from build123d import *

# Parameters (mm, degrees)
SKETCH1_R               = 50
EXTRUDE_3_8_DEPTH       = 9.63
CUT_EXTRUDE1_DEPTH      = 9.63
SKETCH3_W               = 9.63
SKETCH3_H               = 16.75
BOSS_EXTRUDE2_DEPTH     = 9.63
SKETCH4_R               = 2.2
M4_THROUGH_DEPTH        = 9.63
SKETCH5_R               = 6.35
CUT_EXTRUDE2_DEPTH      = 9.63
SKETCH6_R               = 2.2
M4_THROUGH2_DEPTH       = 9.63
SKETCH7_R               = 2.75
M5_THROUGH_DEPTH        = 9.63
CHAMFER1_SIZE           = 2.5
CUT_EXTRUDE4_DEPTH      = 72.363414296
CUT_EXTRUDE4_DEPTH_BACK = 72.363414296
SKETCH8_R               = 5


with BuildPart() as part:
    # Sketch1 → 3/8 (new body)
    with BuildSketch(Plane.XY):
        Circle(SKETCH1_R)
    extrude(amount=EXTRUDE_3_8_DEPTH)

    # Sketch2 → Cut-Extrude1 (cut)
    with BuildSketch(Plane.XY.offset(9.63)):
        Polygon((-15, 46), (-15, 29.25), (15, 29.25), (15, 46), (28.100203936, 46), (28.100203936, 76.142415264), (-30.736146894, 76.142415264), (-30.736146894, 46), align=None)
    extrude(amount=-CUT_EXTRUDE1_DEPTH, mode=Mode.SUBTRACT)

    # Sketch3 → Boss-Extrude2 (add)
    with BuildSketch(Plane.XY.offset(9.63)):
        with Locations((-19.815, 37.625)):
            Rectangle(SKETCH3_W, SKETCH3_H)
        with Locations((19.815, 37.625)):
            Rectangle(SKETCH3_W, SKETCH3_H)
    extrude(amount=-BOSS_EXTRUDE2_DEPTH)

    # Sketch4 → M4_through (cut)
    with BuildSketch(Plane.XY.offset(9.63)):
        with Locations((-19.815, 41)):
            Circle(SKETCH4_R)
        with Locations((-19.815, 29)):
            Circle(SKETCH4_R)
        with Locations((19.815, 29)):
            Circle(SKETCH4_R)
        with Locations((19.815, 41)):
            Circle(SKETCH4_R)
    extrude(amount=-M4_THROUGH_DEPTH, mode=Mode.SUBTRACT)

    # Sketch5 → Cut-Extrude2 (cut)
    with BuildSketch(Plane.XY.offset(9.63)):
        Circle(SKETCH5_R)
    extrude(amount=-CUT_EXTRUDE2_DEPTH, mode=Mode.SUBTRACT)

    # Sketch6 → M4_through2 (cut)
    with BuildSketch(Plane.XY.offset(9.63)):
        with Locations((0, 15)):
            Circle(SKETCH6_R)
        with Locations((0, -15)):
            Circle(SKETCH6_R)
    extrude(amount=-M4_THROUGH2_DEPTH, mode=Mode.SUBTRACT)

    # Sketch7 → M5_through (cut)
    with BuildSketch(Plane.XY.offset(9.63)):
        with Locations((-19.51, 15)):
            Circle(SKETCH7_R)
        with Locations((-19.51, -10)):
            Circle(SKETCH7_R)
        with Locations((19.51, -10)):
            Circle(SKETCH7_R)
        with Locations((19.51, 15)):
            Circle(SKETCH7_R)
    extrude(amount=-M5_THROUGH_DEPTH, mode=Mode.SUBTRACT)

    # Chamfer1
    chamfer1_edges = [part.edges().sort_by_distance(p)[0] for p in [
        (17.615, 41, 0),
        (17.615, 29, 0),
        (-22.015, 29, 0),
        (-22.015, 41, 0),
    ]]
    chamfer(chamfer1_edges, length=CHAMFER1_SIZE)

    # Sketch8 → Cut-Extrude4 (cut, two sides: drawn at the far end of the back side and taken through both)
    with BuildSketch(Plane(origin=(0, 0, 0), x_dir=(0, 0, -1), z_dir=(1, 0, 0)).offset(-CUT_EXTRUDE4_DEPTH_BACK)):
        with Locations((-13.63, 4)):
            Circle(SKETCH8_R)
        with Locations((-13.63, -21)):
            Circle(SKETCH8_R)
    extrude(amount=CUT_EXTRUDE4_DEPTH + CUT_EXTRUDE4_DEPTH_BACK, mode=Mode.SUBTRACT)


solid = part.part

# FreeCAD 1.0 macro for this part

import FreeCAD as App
import Part
import Sketcher

V = App.Vector
Q = App.Units.Quantity


def edges_at(feature, points):
    """Names of the edges that pass closest to the given points."""
    edges = feature.Shape.Edges
    near = lambda p: min(range(len(edges)), key=lambda i: edges[i].distToShape(Part.Vertex(*p))[0])
    return sorted({f"Edge{near(p) + 1}" for p in points})


def add_polygon(sketch, points):
    """Adds a closed chain of lines whose ends are joined by coincident constraints."""
    first, n = sketch.GeometryCount, len(points)
    for a, b in zip(points, points[1:] + points[:1]):
        sketch.addGeometry(Part.LineSegment(App.Vector(*a, 0), App.Vector(*b, 0)), False)
    for i in range(n):
        sketch.addConstraint(Sketcher.Constraint("Coincident", first + i, 2, first + (i + 1) % n, 1))

doc = App.newDocument("Part")
params = doc.addObject("Spreadsheet::Sheet", "Params")
for row, (alias, value) in enumerate([
    ("sketch1_diameter", "100 mm"),
    ("pad1_length", "9.63 mm"),
    ("sketch2_width", "30 mm"),
    ("sketch2_height", "16.75 mm"),
    ("pocket1_length", "9.63 mm"),
    ("sketch3_width", "9.63 mm"),
    ("sketch3_height", "16.75 mm"),
    ("pad2_length", "9.63 mm"),
    ("sketch4_diameter", "4.4 mm"),
    ("pocket2_length", "9.63 mm"),
    ("sketch5_diameter", "12.7 mm"),
    ("pocket3_length", "9.63 mm"),
    ("sketch6_diameter", "4.4 mm"),
    ("pocket4_length", "9.63 mm"),
    ("sketch7_diameter", "5.5 mm"),
    ("pocket5_length", "9.63 mm"),
    ("chamfer_size", "2.5 mm"),
    ("sketch8_diameter", "10 mm"),
], start=1):
    params.set(f"A{row}", alias)
    params.set(f"B{row}", "=" + value)
    params.setAlias(f"B{row}", alias)

body = doc.addObject("PartDesign::Body", "Body")

# Sketch on XY plane
sketch1 = body.newObject("Sketcher::SketchObject", "Sketch")
sketch1.AttachmentSupport = (doc.getObject("XY_Plane"), [""])
sketch1.MapMode = "FlatFace"
sketch1.addGeometry(Part.Circle(V(0, 0, 0), V(0, 0, 1), 50), False)
sketch1.addConstraint([
    Sketcher.Constraint("Coincident", 0, 3, -1, 1),
    Sketcher.Constraint("Diameter", 0, Q("100 mm")),
])
sketch1.setExpression("Constraints[1]", "Params.sketch1_diameter")
pad1 = body.newObject("PartDesign::Pad", "Pad")
pad1.Profile = sketch1
pad1.setExpression("Length", "Params.pad1_length")

# Sketch on XY plane
sketch2 = body.newObject("Sketcher::SketchObject", "Sketch001")
sketch2.AttachmentSupport = (doc.getObject("XY_Plane"), [""])
sketch2.MapMode = "FlatFace"
sketch2.AttachmentOffset = App.Placement(V(0, 0, 9.63), App.Rotation())
add_polygon(sketch2, [(-15, 46), (-15, 29.25), (15, 29.25), (15, 46), (28.100204, 46), (28.100204, 76.142415), (-30.736147, 76.142415), (-30.736147, 46)])  # lines 0-7
sketch2.addConstraint([
    Sketcher.Constraint("Vertical", 0),
    Sketcher.Constraint("Horizontal", 1),
    Sketcher.Constraint("Vertical", 2),
    Sketcher.Constraint("Horizontal", 3),
    Sketcher.Constraint("Vertical", 4),
    Sketcher.Constraint("Horizontal", 5),
    Sketcher.Constraint("Vertical", 6),
    Sketcher.Constraint("Horizontal", 7),
    Sketcher.Constraint("Symmetric", 2, 2, 7, 2, -2),
    Sketcher.Constraint("DistanceX", 1, 1, 1, 2, Q("30 mm")),
    Sketcher.Constraint("DistanceY", -1, 1, 2, 2, Q("46 mm")),
    Sketcher.Constraint("DistanceY", 0, 2, 0, 1, Q("16.75 mm")),
    Sketcher.Constraint("DistanceX", 5, 2, 5, 1, Q("58.836351 mm")),
    Sketcher.Constraint("DistanceX", 3, 1, 3, 2, Q("13.100204 mm")),
    Sketcher.Constraint("DistanceY", 4, 1, 4, 2, Q("30.142415 mm")),
])
sketch2.setExpression("Constraints[17]", "Params.sketch2_width")
sketch2.setExpression("Constraints[19]", "Params.sketch2_height")
pocket1 = body.newObject("PartDesign::Pocket", "Pocket")
pocket1.Profile = sketch2
pocket1.setExpression("Length", "Params.pocket1_length")

# Sketch on XY plane
sketch3 = body.newObject("Sketcher::SketchObject", "Sketch002")
sketch3.AttachmentSupport = (doc.getObject("XY_Plane"), [""])
sketch3.MapMode = "FlatFace"
sketch3.AttachmentOffset = App.Placement(V(0, 0, 9.63), App.Rotation())
add_polygon(sketch3, [(-24.63, 46), (-24.63, 29.25), (-15, 29.25), (-15, 46)])  # lines 0-3
add_polygon(sketch3, [(15, 46), (15, 29.25), (24.63, 29.25), (24.63, 46)])  # lines 4-7
sketch3.addConstraint([
    Sketcher.Constraint("Vertical", 0),
    Sketcher.Constraint("Horizontal", 1),
    Sketcher.Constraint("Vertical", 2),
    Sketcher.Constraint("Horizontal", 3),
    Sketcher.Constraint("Vertical", 4),
    Sketcher.Constraint("Horizontal", 5),
    Sketcher.Constraint("Vertical", 6),
    Sketcher.Constraint("Horizontal", 7),
    Sketcher.Constraint("Symmetric", 1, 2, 4, 2, -2),
    Sketcher.Constraint("Symmetric", 3, 2, 6, 2, -2),
    Sketcher.Constraint("DistanceX", 1, 2, -1, 1, Q("15 mm")),
    Sketcher.Constraint("DistanceY", -1, 1, 2, 2, Q("46 mm")),
    Sketcher.Constraint("DistanceX", 1, 1, 1, 2, Q("9.63 mm")),
    Sketcher.Constraint("DistanceY", 0, 2, 0, 1, Q("16.75 mm")),
])
sketch3.setExpression("Constraints[20]", "Params.sketch3_width")
sketch3.setExpression("Constraints[21]", "Params.sketch3_height")
pad2 = body.newObject("PartDesign::Pad", "Pad001")
pad2.Profile = sketch3
pad2.setExpression("Length", "Params.pad2_length")
pad2.Reversed = True

# Sketch on XY plane
sketch4 = body.newObject("Sketcher::SketchObject", "Sketch003")
sketch4.AttachmentSupport = (doc.getObject("XY_Plane"), [""])
sketch4.MapMode = "FlatFace"
sketch4.AttachmentOffset = App.Placement(V(0, 0, 9.63), App.Rotation())
sketch4.addGeometry([
    Part.Circle(V(-19.815, 41, 0), V(0, 0, 1), 2.2),
    Part.Circle(V(-19.815, 29, 0), V(0, 0, 1), 2.2),
    Part.Circle(V(19.815, 29, 0), V(0, 0, 1), 2.2),
    Part.Circle(V(19.815, 41, 0), V(0, 0, 1), 2.2),
], False)
sketch4.addConstraint([
    Sketcher.Constraint("Equal", 0, 1),
    Sketcher.Constraint("Equal", 1, 2),
    Sketcher.Constraint("Equal", 2, 3),
    Sketcher.Constraint("Symmetric", 1, 3, 2, 3, -2),
    Sketcher.Constraint("Symmetric", 0, 3, 3, 3, -2),
    Sketcher.Constraint("Vertical", 0, 3, 1, 3),
    Sketcher.Constraint("Diameter", 0, Q("4.4 mm")),
    Sketcher.Constraint("DistanceY", -1, 1, 0, 3, Q("41 mm")),
    Sketcher.Constraint("DistanceY", -1, 1, 1, 3, Q("29 mm")),
    Sketcher.Constraint("DistanceX", 1, 3, 2, 3, Q("39.63 mm")),
])
sketch4.setExpression("Constraints[6]", "Params.sketch4_diameter")
pocket2 = body.newObject("PartDesign::Pocket", "Pocket001")
pocket2.Profile = sketch4
pocket2.setExpression("Length", "Params.pocket2_length")

# Sketch on XY plane
sketch5 = body.newObject("Sketcher::SketchObject", "Sketch004")
sketch5.AttachmentSupport = (doc.getObject("XY_Plane"), [""])
sketch5.MapMode = "FlatFace"
sketch5.AttachmentOffset = App.Placement(V(0, 0, 9.63), App.Rotation())
sketch5.addGeometry(Part.Circle(V(0, 0, 0), V(0, 0, 1), 6.35), False)
sketch5.addConstraint([
    Sketcher.Constraint("Coincident", 0, 3, -1, 1),
    Sketcher.Constraint("Diameter", 0, Q("12.7 mm")),
])
sketch5.setExpression("Constraints[1]", "Params.sketch5_diameter")
pocket3 = body.newObject("PartDesign::Pocket", "Pocket002")
pocket3.Profile = sketch5
pocket3.setExpression("Length", "Params.pocket3_length")

# Sketch on XY plane
sketch6 = body.newObject("Sketcher::SketchObject", "Sketch005")
sketch6.AttachmentSupport = (doc.getObject("XY_Plane"), [""])
sketch6.MapMode = "FlatFace"
sketch6.AttachmentOffset = App.Placement(V(0, 0, 9.63), App.Rotation())
sketch6.addGeometry([
    Part.Circle(V(0, 15, 0), V(0, 0, 1), 2.2),
    Part.Circle(V(0, -15, 0), V(0, 0, 1), 2.2),
], False)
sketch6.addConstraint([
    Sketcher.Constraint("Equal", 0, 1),
    Sketcher.Constraint("Symmetric", 0, 3, 1, 3, -1, 1),
    Sketcher.Constraint("PointOnObject", 0, 3, -2),
    Sketcher.Constraint("Diameter", 0, Q("4.4 mm")),
    Sketcher.Constraint("DistanceY", -1, 1, 0, 3, Q("15 mm")),
])
sketch6.setExpression("Constraints[3]", "Params.sketch6_diameter")
pocket4 = body.newObject("PartDesign::Pocket", "Pocket003")
pocket4.Profile = sketch6
pocket4.setExpression("Length", "Params.pocket4_length")

# Sketch on XY plane
sketch7 = body.newObject("Sketcher::SketchObject", "Sketch006")
sketch7.AttachmentSupport = (doc.getObject("XY_Plane"), [""])
sketch7.MapMode = "FlatFace"
sketch7.AttachmentOffset = App.Placement(V(0, 0, 9.63), App.Rotation())
sketch7.addGeometry([
    Part.Circle(V(-19.51, 15, 0), V(0, 0, 1), 2.75),
    Part.Circle(V(-19.51, -10, 0), V(0, 0, 1), 2.75),
    Part.Circle(V(19.51, -10, 0), V(0, 0, 1), 2.75),
    Part.Circle(V(19.51, 15, 0), V(0, 0, 1), 2.75),
], False)
sketch7.addConstraint([
    Sketcher.Constraint("Equal", 0, 1),
    Sketcher.Constraint("Equal", 1, 2),
    Sketcher.Constraint("Equal", 2, 3),
    Sketcher.Constraint("Symmetric", 1, 3, 2, 3, -2),
    Sketcher.Constraint("Symmetric", 0, 3, 3, 3, -2),
    Sketcher.Constraint("Vertical", 0, 3, 1, 3),
    Sketcher.Constraint("Diameter", 0, Q("5.5 mm")),
    Sketcher.Constraint("DistanceY", -1, 1, 0, 3, Q("15 mm")),
    Sketcher.Constraint("DistanceY", 1, 3, -1, 1, Q("10 mm")),
    Sketcher.Constraint("DistanceX", 0, 3, -1, 1, Q("19.51 mm")),
])
sketch7.setExpression("Constraints[6]", "Params.sketch7_diameter")
pocket5 = body.newObject("PartDesign::Pocket", "Pocket004")
pocket5.Profile = sketch7
pocket5.setExpression("Length", "Params.pocket5_length")
doc.recompute()

chamfer = body.newObject("PartDesign::Chamfer", "Chamfer")
chamfer.Base = (pocket5, edges_at(pocket5, [
    (17.615, 41, 0),
    (17.615, 29, 0),
    (-22.015, 29, 0),
    (-22.015, 41, 0),
]))
chamfer.setExpression("Size", "Params.chamfer_size")

# Sketch on YZ plane
sketch8 = body.newObject("Sketcher::SketchObject", "Sketch007")
sketch8.AttachmentSupport = (doc.getObject("YZ_Plane"), [""])
sketch8.MapMode = "FlatFace"
sketch8.addGeometry([
    Part.Circle(V(4, 13.63, 0), V(0, 0, 1), 5),
    Part.Circle(V(-21, 13.63, 0), V(0, 0, 1), 5),
], False)
sketch8.addConstraint([
    Sketcher.Constraint("Equal", 0, 1),
    Sketcher.Constraint("Horizontal", 0, 3, 1, 3),
    Sketcher.Constraint("Diameter", 0, Q("10 mm")),
    Sketcher.Constraint("DistanceX", -1, 1, 0, 3, Q("4 mm")),
    Sketcher.Constraint("DistanceX", 1, 3, -1, 1, Q("21 mm")),
    Sketcher.Constraint("DistanceY", -1, 1, 0, 3, Q("13.63 mm")),
])
sketch8.setExpression("Constraints[2]", "Params.sketch8_diameter")
pocket6 = body.newObject("PartDesign::Pocket", "Pocket005")
pocket6.Profile = sketch8
pocket6.Type = "ThroughAll"
pocket6.Midplane = True

doc.recompute()
